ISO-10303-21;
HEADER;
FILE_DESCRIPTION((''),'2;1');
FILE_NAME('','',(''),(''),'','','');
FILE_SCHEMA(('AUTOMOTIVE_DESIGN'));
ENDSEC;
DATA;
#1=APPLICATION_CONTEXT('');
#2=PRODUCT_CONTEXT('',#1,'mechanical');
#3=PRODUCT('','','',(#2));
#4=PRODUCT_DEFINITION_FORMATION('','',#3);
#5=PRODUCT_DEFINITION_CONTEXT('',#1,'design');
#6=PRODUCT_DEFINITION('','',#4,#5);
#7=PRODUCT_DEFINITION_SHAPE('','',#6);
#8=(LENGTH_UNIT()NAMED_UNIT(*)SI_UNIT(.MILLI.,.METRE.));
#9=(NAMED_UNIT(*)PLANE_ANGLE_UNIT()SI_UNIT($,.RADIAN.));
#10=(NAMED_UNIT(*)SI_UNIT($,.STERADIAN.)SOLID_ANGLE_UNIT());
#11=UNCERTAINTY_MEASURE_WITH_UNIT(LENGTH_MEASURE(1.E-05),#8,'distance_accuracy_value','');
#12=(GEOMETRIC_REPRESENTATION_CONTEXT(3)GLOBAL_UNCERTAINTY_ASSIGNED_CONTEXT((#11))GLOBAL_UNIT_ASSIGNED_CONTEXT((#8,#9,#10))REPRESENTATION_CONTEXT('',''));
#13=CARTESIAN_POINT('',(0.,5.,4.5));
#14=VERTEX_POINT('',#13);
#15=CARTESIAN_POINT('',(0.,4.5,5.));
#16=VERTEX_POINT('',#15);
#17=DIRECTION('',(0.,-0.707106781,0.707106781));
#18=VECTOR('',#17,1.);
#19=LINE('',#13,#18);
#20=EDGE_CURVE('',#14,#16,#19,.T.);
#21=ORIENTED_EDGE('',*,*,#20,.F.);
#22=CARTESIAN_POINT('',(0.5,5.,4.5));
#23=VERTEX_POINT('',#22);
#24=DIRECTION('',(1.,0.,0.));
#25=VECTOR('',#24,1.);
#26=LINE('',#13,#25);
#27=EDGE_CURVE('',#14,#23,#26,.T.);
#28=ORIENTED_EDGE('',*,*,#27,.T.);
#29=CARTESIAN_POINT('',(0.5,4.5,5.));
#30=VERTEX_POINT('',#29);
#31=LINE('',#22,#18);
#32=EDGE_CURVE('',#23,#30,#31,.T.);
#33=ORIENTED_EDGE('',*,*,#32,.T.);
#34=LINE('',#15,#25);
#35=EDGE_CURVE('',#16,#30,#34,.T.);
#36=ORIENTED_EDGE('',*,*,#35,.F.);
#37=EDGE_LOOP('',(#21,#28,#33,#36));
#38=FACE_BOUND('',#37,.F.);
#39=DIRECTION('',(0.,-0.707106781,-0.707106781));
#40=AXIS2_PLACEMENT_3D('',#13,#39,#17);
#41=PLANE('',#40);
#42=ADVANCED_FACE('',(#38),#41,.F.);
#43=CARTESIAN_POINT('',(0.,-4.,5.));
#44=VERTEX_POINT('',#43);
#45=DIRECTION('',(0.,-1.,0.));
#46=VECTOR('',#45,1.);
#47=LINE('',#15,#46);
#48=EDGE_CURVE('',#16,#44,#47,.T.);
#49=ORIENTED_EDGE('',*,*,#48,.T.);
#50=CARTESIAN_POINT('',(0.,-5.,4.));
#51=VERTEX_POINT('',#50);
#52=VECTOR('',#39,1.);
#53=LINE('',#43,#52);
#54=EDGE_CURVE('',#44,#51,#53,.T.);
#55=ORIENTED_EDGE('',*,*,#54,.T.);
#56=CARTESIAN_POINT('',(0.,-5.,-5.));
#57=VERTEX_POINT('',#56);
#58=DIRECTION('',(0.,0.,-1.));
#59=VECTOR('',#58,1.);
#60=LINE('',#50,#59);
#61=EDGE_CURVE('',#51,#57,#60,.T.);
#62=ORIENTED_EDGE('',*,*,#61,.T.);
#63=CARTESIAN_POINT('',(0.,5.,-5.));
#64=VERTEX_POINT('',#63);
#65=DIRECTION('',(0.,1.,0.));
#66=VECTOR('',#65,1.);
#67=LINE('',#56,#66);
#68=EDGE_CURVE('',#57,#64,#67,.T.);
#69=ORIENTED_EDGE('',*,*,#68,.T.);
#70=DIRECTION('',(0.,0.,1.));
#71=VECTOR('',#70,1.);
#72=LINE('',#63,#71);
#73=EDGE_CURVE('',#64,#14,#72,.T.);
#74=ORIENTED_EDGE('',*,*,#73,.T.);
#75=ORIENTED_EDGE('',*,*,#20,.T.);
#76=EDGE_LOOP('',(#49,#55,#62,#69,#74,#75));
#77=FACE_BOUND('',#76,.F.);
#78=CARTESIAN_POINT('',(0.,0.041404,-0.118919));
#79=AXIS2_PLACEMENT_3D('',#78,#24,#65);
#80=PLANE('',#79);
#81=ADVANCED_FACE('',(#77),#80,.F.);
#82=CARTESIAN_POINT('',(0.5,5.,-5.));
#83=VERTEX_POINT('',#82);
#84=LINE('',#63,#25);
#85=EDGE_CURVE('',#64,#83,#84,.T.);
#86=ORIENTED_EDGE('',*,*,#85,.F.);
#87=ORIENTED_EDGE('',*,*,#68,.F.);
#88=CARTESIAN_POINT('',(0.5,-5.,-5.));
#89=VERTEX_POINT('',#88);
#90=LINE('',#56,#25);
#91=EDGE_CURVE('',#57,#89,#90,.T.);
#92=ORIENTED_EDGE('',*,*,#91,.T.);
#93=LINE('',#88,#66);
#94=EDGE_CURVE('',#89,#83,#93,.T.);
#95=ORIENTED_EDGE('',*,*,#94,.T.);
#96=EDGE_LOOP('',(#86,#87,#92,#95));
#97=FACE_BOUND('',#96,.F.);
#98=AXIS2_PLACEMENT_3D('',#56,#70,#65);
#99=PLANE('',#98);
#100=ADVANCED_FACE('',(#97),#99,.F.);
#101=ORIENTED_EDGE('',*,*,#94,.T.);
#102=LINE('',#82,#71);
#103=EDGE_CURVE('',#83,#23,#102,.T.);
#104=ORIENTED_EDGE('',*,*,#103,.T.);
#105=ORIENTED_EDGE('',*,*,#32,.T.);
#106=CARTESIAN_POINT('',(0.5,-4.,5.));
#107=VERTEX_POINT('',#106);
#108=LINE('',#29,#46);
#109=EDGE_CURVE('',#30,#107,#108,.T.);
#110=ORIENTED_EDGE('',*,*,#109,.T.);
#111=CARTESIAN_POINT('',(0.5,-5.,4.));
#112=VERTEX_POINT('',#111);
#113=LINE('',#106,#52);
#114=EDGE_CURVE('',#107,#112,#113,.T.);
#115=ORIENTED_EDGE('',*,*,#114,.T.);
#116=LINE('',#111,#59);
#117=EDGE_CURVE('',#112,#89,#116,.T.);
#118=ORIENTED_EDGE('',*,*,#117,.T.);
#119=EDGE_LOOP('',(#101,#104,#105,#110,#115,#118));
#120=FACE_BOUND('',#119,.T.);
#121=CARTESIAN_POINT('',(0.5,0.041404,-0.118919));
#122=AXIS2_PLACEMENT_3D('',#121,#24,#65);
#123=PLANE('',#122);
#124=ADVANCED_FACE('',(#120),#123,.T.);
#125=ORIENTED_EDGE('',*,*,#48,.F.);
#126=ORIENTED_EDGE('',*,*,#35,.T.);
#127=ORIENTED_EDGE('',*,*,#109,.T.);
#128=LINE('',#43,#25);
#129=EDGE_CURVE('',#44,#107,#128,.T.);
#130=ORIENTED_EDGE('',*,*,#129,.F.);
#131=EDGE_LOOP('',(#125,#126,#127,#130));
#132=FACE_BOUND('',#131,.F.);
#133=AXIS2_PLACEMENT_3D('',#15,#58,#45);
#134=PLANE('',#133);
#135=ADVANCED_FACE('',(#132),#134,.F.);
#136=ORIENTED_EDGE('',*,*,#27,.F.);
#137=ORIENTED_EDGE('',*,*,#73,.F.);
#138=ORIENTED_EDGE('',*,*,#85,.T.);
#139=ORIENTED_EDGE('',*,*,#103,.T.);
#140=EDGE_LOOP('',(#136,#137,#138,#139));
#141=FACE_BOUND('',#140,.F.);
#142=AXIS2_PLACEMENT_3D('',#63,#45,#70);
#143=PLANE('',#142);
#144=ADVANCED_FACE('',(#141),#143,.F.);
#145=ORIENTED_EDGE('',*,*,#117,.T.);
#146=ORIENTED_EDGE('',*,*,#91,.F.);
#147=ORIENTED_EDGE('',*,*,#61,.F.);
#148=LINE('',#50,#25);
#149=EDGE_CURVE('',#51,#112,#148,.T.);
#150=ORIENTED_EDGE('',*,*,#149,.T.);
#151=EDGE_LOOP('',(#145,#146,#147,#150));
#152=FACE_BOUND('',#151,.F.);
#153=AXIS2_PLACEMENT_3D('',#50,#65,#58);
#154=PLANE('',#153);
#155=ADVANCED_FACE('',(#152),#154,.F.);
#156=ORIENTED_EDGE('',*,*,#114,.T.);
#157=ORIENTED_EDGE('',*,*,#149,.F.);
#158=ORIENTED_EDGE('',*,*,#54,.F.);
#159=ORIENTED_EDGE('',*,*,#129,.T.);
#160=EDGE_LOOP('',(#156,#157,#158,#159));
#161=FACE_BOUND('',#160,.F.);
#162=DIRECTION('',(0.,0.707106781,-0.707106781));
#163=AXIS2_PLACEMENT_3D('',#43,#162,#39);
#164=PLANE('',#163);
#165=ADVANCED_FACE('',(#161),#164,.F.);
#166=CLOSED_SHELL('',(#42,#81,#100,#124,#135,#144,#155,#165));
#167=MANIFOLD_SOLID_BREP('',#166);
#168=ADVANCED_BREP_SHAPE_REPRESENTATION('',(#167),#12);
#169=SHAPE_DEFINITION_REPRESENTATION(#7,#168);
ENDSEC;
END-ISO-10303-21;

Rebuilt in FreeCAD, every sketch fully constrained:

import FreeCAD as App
import Part
import Sketcher
Q = App.Units.Quantity

doc = App.newDocument("Part")
body = doc.addObject("PartDesign::Body", "Body")

sketch1 = body.newObject("Sketcher::SketchObject", "Sketch")
sketch1.AttachmentSupport = (doc.getObject("YZ_Plane"), [""])
sketch1.MapMode = "FlatFace"
sketch1.addGeometry([
    Part.LineSegment(App.Vector(-5, -5, 0), App.Vector(5, -5, 0)),
    Part.LineSegment(App.Vector(5, -5, 0), App.Vector(5, 4.5, 0)),
    Part.LineSegment(App.Vector(5, 4.5, 0), App.Vector(4.5, 5, 0)),
    Part.LineSegment(App.Vector(4.5, 5, 0), App.Vector(-4, 5, 0)),
    Part.LineSegment(App.Vector(-4, 5, 0), App.Vector(-5, 4, 0)),
    Part.LineSegment(App.Vector(-5, 4, 0), App.Vector(-5, -5, 0)),
], False)
sketch1.addConstraint([
    Sketcher.Constraint("Coincident", 0, 2, 1, 1),
    Sketcher.Constraint("Coincident", 1, 2, 2, 1),
    Sketcher.Constraint("Coincident", 2, 2, 3, 1),
    Sketcher.Constraint("Coincident", 3, 2, 4, 1),
    Sketcher.Constraint("Coincident", 4, 2, 5, 1),
    Sketcher.Constraint("Coincident", 5, 2, 0, 1),
    Sketcher.Constraint("Horizontal", 0),
    Sketcher.Constraint("Vertical", 1),
    Sketcher.Constraint("Horizontal", 3),
    Sketcher.Constraint("Vertical", 5),
    Sketcher.Constraint("Perpendicular", 2, 4),
    Sketcher.Constraint("DistanceX", 0, 1, 0, 2, Q("10 mm")),
    Sketcher.Constraint("DistanceY", 5, 2, 5, 1, Q("9 mm")),
    Sketcher.Constraint("Angle", 2, Q("135 deg")),
    Sketcher.Constraint("DistanceX", 3, 2, 3, 1, Q("8.5 mm")),
    Sketcher.Constraint("DistanceY", 1, 1, 1, 2, Q("9.5 mm")),
    Sketcher.Constraint("DistanceX", -1, 1, 0, 2, Q("5 mm")),
    Sketcher.Constraint("DistanceY", 0, 2, -1, 1, Q("5 mm")),
])
pad1 = body.newObject("PartDesign::Pad", "Pad")
pad1.Profile = sketch1
pad1.Length = 0.5

doc.recompute()
